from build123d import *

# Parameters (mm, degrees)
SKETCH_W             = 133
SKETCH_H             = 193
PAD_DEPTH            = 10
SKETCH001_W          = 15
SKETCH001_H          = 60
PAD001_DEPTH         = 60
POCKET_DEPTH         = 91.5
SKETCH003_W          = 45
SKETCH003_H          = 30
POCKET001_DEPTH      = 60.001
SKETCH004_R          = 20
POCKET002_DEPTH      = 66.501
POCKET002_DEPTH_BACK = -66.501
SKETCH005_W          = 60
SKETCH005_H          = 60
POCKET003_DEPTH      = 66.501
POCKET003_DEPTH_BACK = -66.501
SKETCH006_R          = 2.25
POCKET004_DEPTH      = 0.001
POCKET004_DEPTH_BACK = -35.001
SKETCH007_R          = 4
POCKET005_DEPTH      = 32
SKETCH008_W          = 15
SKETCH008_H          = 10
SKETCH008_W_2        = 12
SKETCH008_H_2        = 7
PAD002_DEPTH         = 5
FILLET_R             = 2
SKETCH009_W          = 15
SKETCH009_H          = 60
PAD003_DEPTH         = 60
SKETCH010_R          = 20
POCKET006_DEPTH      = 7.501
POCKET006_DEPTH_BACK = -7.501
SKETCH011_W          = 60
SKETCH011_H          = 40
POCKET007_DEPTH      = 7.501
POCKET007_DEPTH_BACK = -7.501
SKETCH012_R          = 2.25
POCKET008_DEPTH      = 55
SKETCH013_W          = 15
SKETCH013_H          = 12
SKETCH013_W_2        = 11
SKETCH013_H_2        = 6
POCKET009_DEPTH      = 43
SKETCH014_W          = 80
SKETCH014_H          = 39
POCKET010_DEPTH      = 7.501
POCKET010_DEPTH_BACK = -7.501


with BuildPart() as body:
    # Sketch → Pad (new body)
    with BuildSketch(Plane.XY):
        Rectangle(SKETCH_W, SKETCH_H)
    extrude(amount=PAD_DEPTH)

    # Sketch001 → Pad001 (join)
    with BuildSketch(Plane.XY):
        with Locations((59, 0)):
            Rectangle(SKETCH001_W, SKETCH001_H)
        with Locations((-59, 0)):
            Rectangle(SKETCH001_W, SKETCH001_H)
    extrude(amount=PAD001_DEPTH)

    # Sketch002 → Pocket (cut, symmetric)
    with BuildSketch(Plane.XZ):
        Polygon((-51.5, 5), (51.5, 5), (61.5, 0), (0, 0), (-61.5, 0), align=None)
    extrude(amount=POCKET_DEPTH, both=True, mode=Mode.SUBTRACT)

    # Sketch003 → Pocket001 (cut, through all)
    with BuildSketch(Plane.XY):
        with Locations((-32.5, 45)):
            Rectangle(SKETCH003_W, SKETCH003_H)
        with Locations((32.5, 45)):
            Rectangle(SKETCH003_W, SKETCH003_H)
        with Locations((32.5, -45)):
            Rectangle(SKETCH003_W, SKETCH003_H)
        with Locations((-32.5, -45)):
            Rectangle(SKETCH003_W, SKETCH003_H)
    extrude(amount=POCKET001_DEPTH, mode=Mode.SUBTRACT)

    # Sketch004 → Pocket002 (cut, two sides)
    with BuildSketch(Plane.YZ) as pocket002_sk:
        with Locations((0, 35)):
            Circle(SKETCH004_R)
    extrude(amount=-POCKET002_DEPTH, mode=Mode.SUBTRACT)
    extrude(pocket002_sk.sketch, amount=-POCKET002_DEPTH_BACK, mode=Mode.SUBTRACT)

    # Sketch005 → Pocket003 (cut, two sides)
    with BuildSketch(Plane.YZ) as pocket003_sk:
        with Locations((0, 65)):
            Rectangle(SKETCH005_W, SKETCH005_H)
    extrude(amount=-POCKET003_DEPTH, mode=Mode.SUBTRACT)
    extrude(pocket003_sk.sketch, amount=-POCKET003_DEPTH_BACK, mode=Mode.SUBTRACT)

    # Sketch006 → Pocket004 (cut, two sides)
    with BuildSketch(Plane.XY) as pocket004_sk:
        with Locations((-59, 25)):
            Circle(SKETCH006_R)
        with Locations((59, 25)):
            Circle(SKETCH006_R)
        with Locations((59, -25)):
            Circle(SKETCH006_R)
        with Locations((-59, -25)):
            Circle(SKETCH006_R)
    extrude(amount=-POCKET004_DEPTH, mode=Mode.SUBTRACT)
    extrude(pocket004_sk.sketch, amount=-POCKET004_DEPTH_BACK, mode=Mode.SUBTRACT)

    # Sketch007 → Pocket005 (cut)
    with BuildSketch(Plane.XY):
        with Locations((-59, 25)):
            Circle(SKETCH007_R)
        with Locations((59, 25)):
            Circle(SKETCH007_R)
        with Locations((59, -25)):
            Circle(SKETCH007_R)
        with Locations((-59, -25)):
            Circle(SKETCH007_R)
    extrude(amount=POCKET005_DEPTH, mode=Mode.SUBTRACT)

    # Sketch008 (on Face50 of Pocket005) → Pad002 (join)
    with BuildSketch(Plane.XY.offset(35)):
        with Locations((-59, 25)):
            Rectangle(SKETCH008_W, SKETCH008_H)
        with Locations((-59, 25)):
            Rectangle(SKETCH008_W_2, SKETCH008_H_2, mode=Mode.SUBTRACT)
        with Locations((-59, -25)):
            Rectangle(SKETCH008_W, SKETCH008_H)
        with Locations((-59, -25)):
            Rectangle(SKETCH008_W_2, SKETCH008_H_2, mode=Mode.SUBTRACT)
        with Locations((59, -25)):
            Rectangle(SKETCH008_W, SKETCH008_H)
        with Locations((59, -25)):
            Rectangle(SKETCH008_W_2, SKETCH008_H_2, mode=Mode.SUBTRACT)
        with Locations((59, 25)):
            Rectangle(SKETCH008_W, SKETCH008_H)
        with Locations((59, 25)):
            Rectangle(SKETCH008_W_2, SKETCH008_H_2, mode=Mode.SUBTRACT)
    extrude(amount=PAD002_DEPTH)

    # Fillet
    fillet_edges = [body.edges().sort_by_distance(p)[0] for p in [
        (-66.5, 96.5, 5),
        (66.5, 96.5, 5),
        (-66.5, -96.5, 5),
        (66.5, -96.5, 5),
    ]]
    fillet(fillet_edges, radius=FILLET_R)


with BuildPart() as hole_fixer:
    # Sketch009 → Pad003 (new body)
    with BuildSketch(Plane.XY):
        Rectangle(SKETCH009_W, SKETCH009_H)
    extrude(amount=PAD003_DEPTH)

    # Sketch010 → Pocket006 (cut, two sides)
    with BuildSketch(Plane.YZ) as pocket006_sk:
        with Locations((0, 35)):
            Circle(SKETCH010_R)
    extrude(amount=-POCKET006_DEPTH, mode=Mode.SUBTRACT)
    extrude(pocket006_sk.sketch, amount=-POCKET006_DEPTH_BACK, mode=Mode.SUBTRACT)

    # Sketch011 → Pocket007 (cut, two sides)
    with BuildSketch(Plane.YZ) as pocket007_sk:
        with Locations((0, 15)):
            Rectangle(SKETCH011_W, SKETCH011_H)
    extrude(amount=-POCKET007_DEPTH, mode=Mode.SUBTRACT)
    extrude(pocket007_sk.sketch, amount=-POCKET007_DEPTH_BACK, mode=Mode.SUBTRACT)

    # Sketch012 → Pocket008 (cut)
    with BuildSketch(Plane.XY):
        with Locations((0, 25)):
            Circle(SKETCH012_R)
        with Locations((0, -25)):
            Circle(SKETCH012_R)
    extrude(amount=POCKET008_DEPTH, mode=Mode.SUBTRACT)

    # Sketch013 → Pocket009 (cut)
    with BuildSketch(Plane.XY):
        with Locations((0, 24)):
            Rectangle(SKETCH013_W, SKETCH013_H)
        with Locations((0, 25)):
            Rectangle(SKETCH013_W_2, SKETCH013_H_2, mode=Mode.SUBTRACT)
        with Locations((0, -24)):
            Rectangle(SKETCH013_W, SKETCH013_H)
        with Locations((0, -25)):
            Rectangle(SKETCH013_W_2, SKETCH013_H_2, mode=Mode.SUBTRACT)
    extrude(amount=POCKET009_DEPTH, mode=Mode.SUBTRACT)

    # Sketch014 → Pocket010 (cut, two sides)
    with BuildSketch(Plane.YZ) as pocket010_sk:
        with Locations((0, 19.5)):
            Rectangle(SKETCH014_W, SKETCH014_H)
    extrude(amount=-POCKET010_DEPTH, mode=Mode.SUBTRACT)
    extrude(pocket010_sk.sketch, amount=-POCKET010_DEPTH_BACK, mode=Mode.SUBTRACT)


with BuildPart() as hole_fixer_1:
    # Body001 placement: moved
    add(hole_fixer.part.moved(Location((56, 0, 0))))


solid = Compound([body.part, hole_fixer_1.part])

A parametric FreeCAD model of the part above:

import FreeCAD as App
import Part
import Sketcher
from FreeCAD import Vector


def edges_at(feature, points):
    """Names of the edges that pass closest to the given points."""
    edges = feature.Shape.Edges
    near = lambda p: min(range(len(edges)), key=lambda i: edges[i].distToShape(Part.Vertex(*p))[0])
    return sorted({f"Edge{near(p) + 1}" for p in points})

doc = App.newDocument("Part")
body = doc.addObject("PartDesign::Body", "Body")

sketch1 = doc.addObject("Sketcher::SketchObject", "Sketch")
body.addObject(sketch1)
sketch1.AttachmentSupport = (doc.XY_Plane, [""])
sketch1.MapMode = "FlatFace"
sketch1.addGeometry([
    Part.LineSegment(Vector(-66, 96, 0), Vector(-66, -96, 0)),
    Part.LineSegment(Vector(-66, -96, 0), Vector(66, -96, 0)),
    Part.LineSegment(Vector(66, -96, 0), Vector(66, 96, 0)),
    Part.LineSegment(Vector(66, 96, 0), Vector(-66, 96, 0)),
], False)
sketch1.addConstraint([
    Sketcher.Constraint("Coincident", 0, 2, 1, 1),
    Sketcher.Constraint("Coincident", 1, 2, 2, 1),
    Sketcher.Constraint("Coincident", 2, 2, 3, 1),
    Sketcher.Constraint("Coincident", 3, 2, 0, 1),
    Sketcher.Constraint("Vertical", 0),
    Sketcher.Constraint("Horizontal", 1),
    Sketcher.Constraint("Vertical", 2),
    Sketcher.Constraint("Horizontal", 3),
    Sketcher.Constraint("Symmetric", 0, 2, 2, 2, -1, 1),
    Sketcher.Constraint("DistanceX", 1, 1, 1, 2, 133.0),
    Sketcher.Constraint("DistanceY", 0, 2, 0, 1, 193.0),
])
pad1 = doc.addObject("PartDesign::Pad", "Pad")
body.addObject(pad1)
pad1.Profile = sketch1
pad1.Length = 10

sketch2 = doc.addObject("Sketcher::SketchObject", "Sketch001")
body.addObject(sketch2)
sketch2.AttachmentSupport = (doc.XY_Plane, [""])
sketch2.MapMode = "FlatFace"
sketch2.addGeometry([
    Part.LineSegment(Vector(52, 30, 0), Vector(52, -30, 0)),
    Part.LineSegment(Vector(52, -30, 0), Vector(66, -30, 0)),
    Part.LineSegment(Vector(66, -30, 0), Vector(66, 30, 0)),
    Part.LineSegment(Vector(66, 30, 0), Vector(52, 30, 0)),
    Part.LineSegment(Vector(-66, 30, 0), Vector(-66, -30, 0)),
    Part.LineSegment(Vector(-66, -30, 0), Vector(-52, -30, 0)),
    Part.LineSegment(Vector(-52, -30, 0), Vector(-52, 30, 0)),
    Part.LineSegment(Vector(-52, 30, 0), Vector(-66, 30, 0)),
], False)
sketch2.addConstraint([
    Sketcher.Constraint("Coincident", 0, 2, 1, 1),
    Sketcher.Constraint("Coincident", 1, 2, 2, 1),
    Sketcher.Constraint("Coincident", 2, 2, 3, 1),
    Sketcher.Constraint("Coincident", 3, 2, 0, 1),
    Sketcher.Constraint("Coincident", 4, 2, 5, 1),
    Sketcher.Constraint("Coincident", 5, 2, 6, 1),
    Sketcher.Constraint("Coincident", 6, 2, 7, 1),
    Sketcher.Constraint("Coincident", 7, 2, 4, 1),
    Sketcher.Constraint("Vertical", 0),
    Sketcher.Constraint("Horizontal", 1),
    Sketcher.Constraint("Vertical", 2),
    Sketcher.Constraint("Horizontal", 3),
    Sketcher.Constraint("Vertical", 4),
    Sketcher.Constraint("Horizontal", 5),
    Sketcher.Constraint("Vertical", 6),
    Sketcher.Constraint("Horizontal", 7),
    Sketcher.Constraint("Symmetric", 2, 2, 4, 2, -1, 1),
    Sketcher.Constraint("Symmetric", 0, 2, 6, 2, -1, 1),
    Sketcher.Constraint("Horizontal", 1, 2, 4, 2),
    Sketcher.Constraint("DistanceX", 1, 1, 1, 2, 15.0),
    Sketcher.Constraint("DistanceY", 0, 2, 0, 1, 60.0),
    Sketcher.Constraint("DistanceX", 4, 2, 0, 2, 118.0),
])
pad2 = doc.addObject("PartDesign::Pad", "Pad001")
body.addObject(pad2)
pad2.Profile = sketch2
pad2.Length = 60

sketch3 = doc.addObject("Sketcher::SketchObject", "Sketch002")
body.addObject(sketch3)
sketch3.AttachmentSupport = (doc.XZ_Plane, [""])
sketch3.MapMode = "FlatFace"
sketch3.addGeometry([
    Part.LineSegment(Vector(52, 5, 0), Vector(-52, 5, 0)),
    Part.LineSegment(Vector(-52, 5, 0), Vector(-62, 0, 0)),
    Part.LineSegment(Vector(-62, 0, 0), Vector(62, 0, 0)),
    Part.LineSegment(Vector(62, 0, 0), Vector(52, 5, 0)),
], False)
sketch3.addConstraint([
    Sketcher.Constraint("Coincident", 0, 2, 1, 1),
    Sketcher.Constraint("Coincident", 1, 2, 2, 1),
    Sketcher.Constraint("Coincident", 2, 2, 3, 1),
    Sketcher.Constraint("Coincident", 3, 2, 0, 1),
    Sketcher.Constraint("Horizontal", 0),
    Sketcher.Constraint("Horizontal", 2),
    Sketcher.Constraint("Symmetric", 1, 2, 2, 2, -1, 1),
    Sketcher.Constraint("Equal", 1, 3),
    Sketcher.Constraint("DistanceX", 0, 2, 0, 1, 103.0),
    Sketcher.Constraint("DistanceX", 2, 1, 2, 2, 123.0),
    Sketcher.Constraint("DistanceY", -1, 1, 0, 2, 5.0),
])
pocket1 = doc.addObject("PartDesign::Pocket", "Pocket")
body.addObject(pocket1)
pocket1.Profile = sketch3
pocket1.Length = 183
pocket1.Midplane = True

sketch4 = doc.addObject("Sketcher::SketchObject", "Sketch003")
body.addObject(sketch4)
sketch4.AttachmentSupport = (doc.XY_Plane, [""])
sketch4.MapMode = "FlatFace"
sketch4.addGeometry([
    Part.LineSegment(Vector(-55, 60, 0), Vector(-55, 30, 0)),
    Part.LineSegment(Vector(-55, 30, 0), Vector(-10, 30, 0)),
    Part.LineSegment(Vector(-10, 30, 0), Vector(-10, 60, 0)),
    Part.LineSegment(Vector(-10, 60, 0), Vector(-55, 60, 0)),
    Part.LineSegment(Vector(10, 60, 0), Vector(10, 30, 0)),
    Part.LineSegment(Vector(10, 30, 0), Vector(55, 30, 0)),
    Part.LineSegment(Vector(55, 30, 0), Vector(55, 60, 0)),
    Part.LineSegment(Vector(55, 60, 0), Vector(10, 60, 0)),
    Part.LineSegment(Vector(10, -30, 0), Vector(10, -60, 0)),
    Part.LineSegment(Vector(10, -60, 0), Vector(55, -60, 0)),
    Part.LineSegment(Vector(55, -60, 0), Vector(55, -30, 0)),
    Part.LineSegment(Vector(55, -30, 0), Vector(10, -30, 0)),
    Part.LineSegment(Vector(-55, -30, 0), Vector(-55, -60, 0)),
    Part.LineSegment(Vector(-55, -60, 0), Vector(-10, -60, 0)),
    Part.LineSegment(Vector(-10, -60, 0), Vector(-10, -30, 0)),
    Part.LineSegment(Vector(-10, -30, 0), Vector(-55, -30, 0)),
], False)
sketch4.addConstraint([
    Sketcher.Constraint("Coincident", 0, 2, 1, 1),
    Sketcher.Constraint("Coincident", 1, 2, 2, 1),
    Sketcher.Constraint("Coincident", 2, 2, 3, 1),
    Sketcher.Constraint("Coincident", 3, 2, 0, 1),
    Sketcher.Constraint("Coincident", 4, 2, 5, 1),
    Sketcher.Constraint("Coincident", 5, 2, 6, 1),
    Sketcher.Constraint("Coincident", 6, 2, 7, 1),
    Sketcher.Constraint("Coincident", 7, 2, 4, 1),
    Sketcher.Constraint("Coincident", 8, 2, 9, 1),
    Sketcher.Constraint("Coincident", 9, 2, 10, 1),
    Sketcher.Constraint("Coincident", 10, 2, 11, 1),
    Sketcher.Constraint("Coincident", 11, 2, 8, 1),
    Sketcher.Constraint("Coincident", 12, 2, 13, 1),
    Sketcher.Constraint("Coincident", 13, 2, 14, 1),
    Sketcher.Constraint("Coincident", 14, 2, 15, 1),
    Sketcher.Constraint("Coincident", 15, 2, 12, 1),
    Sketcher.Constraint("Vertical", 0),
    Sketcher.Constraint("Horizontal", 1),
    Sketcher.Constraint("Vertical", 2),
    Sketcher.Constraint("Horizontal", 3),
    Sketcher.Constraint("Vertical", 4),
    Sketcher.Constraint("Horizontal", 5),
    Sketcher.Constraint("Vertical", 6),
    Sketcher.Constraint("Horizontal", 7),
    Sketcher.Constraint("Vertical", 8),
    Sketcher.Constraint("Horizontal", 9),
    Sketcher.Constraint("Vertical", 10),
    Sketcher.Constraint("Horizontal", 11),
    Sketcher.Constraint("Vertical", 12),
    Sketcher.Constraint("Horizontal", 13),
    Sketcher.Constraint("Vertical", 14),
    Sketcher.Constraint("Horizontal", 15),
    Sketcher.Constraint("Symmetric", 2, 2, 8, 2, -1, 1),
    Sketcher.Constraint("Symmetric", 0, 2, 10, 2, -1, 1),
    Sketcher.Constraint("Symmetric", 6, 2, 12, 2, -1, 1),
    Sketcher.Constraint("Symmetric", 4, 2, 14, 2, -1, 1),
    Sketcher.Constraint("Symmetric", 1, 2, 4, 2, -2),
    Sketcher.Constraint("Symmetric", 3, 2, 6, 2, -2),
    Sketcher.Constraint("DistanceX", 1, 1, 1, 2, 45.0),
    Sketcher.Constraint("DistanceY", 0, 2, 0, 1, 30.0),
    Sketcher.Constraint("DistanceX", 0, 2, -1, 1, 55.0),
    Sketcher.Constraint("DistanceY", -1, 1, 0, 2, 30.0),
])
pocket2 = doc.addObject("PartDesign::Pocket", "Pocket001")
body.addObject(pocket2)
pocket2.Profile = sketch4
pocket2.Type = "ThroughAll"
pocket2.Reversed = True

sketch5 = doc.addObject("Sketcher::SketchObject", "Sketch004")
body.addObject(sketch5)
sketch5.AttachmentSupport = (doc.YZ_Plane, [""])
sketch5.MapMode = "FlatFace"
sketch5.addGeometry(Part.Circle(Vector(0, 35, 0), Vector(0, 0, 1), 20), False)
sketch5.addConstraint([
    Sketcher.Constraint("PointOnObject", 0, 3, -2),
    Sketcher.Constraint("Diameter", 0, 40.0),
    Sketcher.Constraint("DistanceY", -1, 1, 0, 3, 35.0),
])
pocket3 = doc.addObject("PartDesign::Pocket", "Pocket002")
body.addObject(pocket3)
pocket3.Profile = sketch5
pocket3.Type = "ThroughAll"
pocket3.Midplane = True

sketch6 = doc.addObject("Sketcher::SketchObject", "Sketch005")
body.addObject(sketch6)
sketch6.AttachmentSupport = (doc.YZ_Plane, [""])
sketch6.MapMode = "FlatFace"
sketch6.addGeometry([
    Part.LineSegment(Vector(-30, 95, 0), Vector(-30, 35, 0)),
    Part.LineSegment(Vector(-30, 35, 0), Vector(30, 35, 0)),
    Part.LineSegment(Vector(30, 35, 0), Vector(30, 95, 0)),
    Part.LineSegment(Vector(30, 95, 0), Vector(-30, 95, 0)),
], False)
sketch6.addConstraint([
    Sketcher.Constraint("Coincident", 0, 2, 1, 1),
    Sketcher.Constraint("Coincident", 1, 2, 2, 1),
    Sketcher.Constraint("Coincident", 2, 2, 3, 1),
    Sketcher.Constraint("Coincident", 3, 2, 0, 1),
    Sketcher.Constraint("Vertical", 0),
    Sketcher.Constraint("Horizontal", 1),
    Sketcher.Constraint("Vertical", 2),
    Sketcher.Constraint("Horizontal", 3),
    Sketcher.Constraint("Equal", 3, 0),
    Sketcher.Constraint("DistanceX", 1, 1, 1, 2, 60.0),
    Sketcher.Constraint("DistanceX", 0, 2, -1, 1, 30.0),
    Sketcher.Constraint("DistanceY", -1, 1, 0, 2, 35.0),
])
pocket4 = doc.addObject("PartDesign::Pocket", "Pocket003")
body.addObject(pocket4)
pocket4.Profile = sketch6
pocket4.Type = "ThroughAll"
pocket4.Midplane = True

sketch7 = doc.addObject("Sketcher::SketchObject", "Sketch006")
body.addObject(sketch7)
sketch7.AttachmentSupport = (doc.XY_Plane, [""])
sketch7.MapMode = "FlatFace"
sketch7.addGeometry([
    Part.Circle(Vector(-59, 25, 0), Vector(0, 0, 1), 2.2),
    Part.Circle(Vector(59, 25, 0), Vector(0, 0, 1), 2.2),
    Part.Circle(Vector(59, -25, 0), Vector(0, 0, 1), 2.2),
    Part.Circle(Vector(-59, -25, 0), Vector(0, 0, 1), 2.2),
], False)
sketch7.addConstraint([
    Sketcher.Constraint("Equal", 0, 1),
    Sketcher.Constraint("Equal", 1, 2),
    Sketcher.Constraint("Equal", 2, 3),
    Sketcher.Constraint("Symmetric", 0, 3, 2, 3, -1, 1),
    Sketcher.Constraint("Symmetric", 1, 3, 3, 3, -1, 1),
    Sketcher.Constraint("Symmetric", 0, 3, 1, 3, -2),
    Sketcher.Constraint("Diameter", 0, 4.5),
    Sketcher.Constraint("DistanceX", 0, 3, -1, 1, 59.0),
    Sketcher.Constraint("DistanceY", -1, 1, 0, 3, 25.0),
])
pocket5 = doc.addObject("PartDesign::Pocket", "Pocket004")
body.addObject(pocket5)
pocket5.Profile = sketch7
pocket5.Type = "ThroughAll"
pocket5.Midplane = True

sketch8 = doc.addObject("Sketcher::SketchObject", "Sketch007")
body.addObject(sketch8)
sketch8.AttachmentSupport = (doc.XY_Plane, [""])
sketch8.MapMode = "FlatFace"
sketch8.addGeometry([
    Part.Circle(Vector(-59, 25, 0), Vector(0, 0, 1), 4),
    Part.Circle(Vector(59, 25, 0), Vector(0, 0, 1), 4),
    Part.Circle(Vector(59, -25, 0), Vector(0, 0, 1), 4),
    Part.Circle(Vector(-59, -25, 0), Vector(0, 0, 1), 4),
], False)
sketch8.addConstraint([
    Sketcher.Constraint("Equal", 0, 1),
    Sketcher.Constraint("Equal", 1, 2),
    Sketcher.Constraint("Equal", 2, 3),
    Sketcher.Constraint("Symmetric", 0, 3, 2, 3, -1, 1),
    Sketcher.Constraint("Symmetric", 1, 3, 3, 3, -1, 1),
    Sketcher.Constraint("Symmetric", 0, 3, 1, 3, -2),
    Sketcher.Constraint("Diameter", 0, 8.0),
    Sketcher.Constraint("DistanceX", 0, 3, -1, 1, 59.0),
    Sketcher.Constraint("DistanceY", -1, 1, 0, 3, 25.0),
])
pocket6 = doc.addObject("PartDesign::Pocket", "Pocket005")
body.addObject(pocket6)
pocket6.Profile = sketch8
pocket6.Length = 32
pocket6.Reversed = True

sketch9 = doc.addObject("Sketcher::SketchObject", "Sketch008")
body.addObject(sketch9)
sketch9.AttachmentSupport = (doc.XY_Plane, [""])
sketch9.MapMode = "FlatFace"
sketch9.AttachmentOffset = App.Placement(Vector(0, 0, 35), App.Rotation())
sketch9.addGeometry([
    Part.LineSegment(Vector(-66, 30, 0), Vector(-66, 20, 0)),
    Part.LineSegment(Vector(-66, 20, 0), Vector(-52, 20, 0)),
    Part.LineSegment(Vector(-52, 20, 0), Vector(-52, 30, 0)),
    Part.LineSegment(Vector(-52, 30, 0), Vector(-66, 30, 0)),
    Part.LineSegment(Vector(-53, 22, 0), Vector(-65, 22, 0)),
    Part.LineSegment(Vector(-65, 22, 0), Vector(-65, 28, 0)),
    Part.LineSegment(Vector(-65, 28, 0), Vector(-53, 28, 0)),
    Part.LineSegment(Vector(-53, 28, 0), Vector(-53, 22, 0)),
    Part.LineSegment(Vector(-66, -20, 0), Vector(-66, -30, 0)),
    Part.LineSegment(Vector(-66, -30, 0), Vector(-52, -30, 0)),
    Part.LineSegment(Vector(-52, -30, 0), Vector(-52, -20, 0)),
    Part.LineSegment(Vector(-52, -20, 0), Vector(-66, -20, 0)),
    Part.LineSegment(Vector(-53, -28, 0), Vector(-65, -28, 0)),
    Part.LineSegment(Vector(-65, -28, 0), Vector(-65, -22, 0)),
    Part.LineSegment(Vector(-65, -22, 0), Vector(-53, -22, 0)),
    Part.LineSegment(Vector(-53, -22, 0), Vector(-53, -28, 0)),
    Part.LineSegment(Vector(52, -20, 0), Vector(52, -30, 0)),
    Part.LineSegment(Vector(52, -30, 0), Vector(66, -30, 0)),
    Part.LineSegment(Vector(66, -30, 0), Vector(66, -20, 0)),
    Part.LineSegment(Vector(66, -20, 0), Vector(52, -20, 0)),
    Part.LineSegment(Vector(65, -28, 0), Vector(53, -28, 0)),
    Part.LineSegment(Vector(53, -28, 0), Vector(53, -22, 0)),
    Part.LineSegment(Vector(53, -22, 0), Vector(65, -22, 0)),
    Part.LineSegment(Vector(65, -22, 0), Vector(65, -28, 0)),
    Part.LineSegment(Vector(52, 30, 0), Vector(52, 20, 0)),
    Part.LineSegment(Vector(52, 20, 0), Vector(66, 20, 0)),
    Part.LineSegment(Vector(66, 20, 0), Vector(66, 30, 0)),
    Part.LineSegment(Vector(66, 30, 0), Vector(52, 30, 0)),
    Part.LineSegment(Vector(65, 22, 0), Vector(53, 22, 0)),
    Part.LineSegment(Vector(53, 22, 0), Vector(53, 28, 0)),
    Part.LineSegment(Vector(53, 28, 0), Vector(65, 28, 0)),
    Part.LineSegment(Vector(65, 28, 0), Vector(65, 22, 0)),
], False)
sketch9.addConstraint([
    Sketcher.Constraint("Coincident", 0, 2, 1, 1),
    Sketcher.Constraint("Coincident", 1, 2, 2, 1),
    Sketcher.Constraint("Coincident", 2, 2, 3, 1),
    Sketcher.Constraint("Coincident", 3, 2, 0, 1),
    Sketcher.Constraint("Coincident", 4, 2, 5, 1),
    Sketcher.Constraint("Coincident", 5, 2, 6, 1),
    Sketcher.Constraint("Coincident", 6, 2, 7, 1),
    Sketcher.Constraint("Coincident", 7, 2, 4, 1),
    Sketcher.Constraint("Coincident", 8, 2, 9, 1),
    Sketcher.Constraint("Coincident", 9, 2, 10, 1),
    Sketcher.Constraint("Coincident", 10, 2, 11, 1),
    Sketcher.Constraint("Coincident", 11, 2, 8, 1),
    Sketcher.Constraint("Coincident", 12, 2, 13, 1),
    Sketcher.Constraint("Coincident", 13, 2, 14, 1),
    Sketcher.Constraint("Coincident", 14, 2, 15, 1),
    Sketcher.Constraint("Coincident", 15, 2, 12, 1),
    Sketcher.Constraint("Coincident", 16, 2, 17, 1),
    Sketcher.Constraint("Coincident", 17, 2, 18, 1),
    Sketcher.Constraint("Coincident", 18, 2, 19, 1),
    Sketcher.Constraint("Coincident", 19, 2, 16, 1),
    Sketcher.Constraint("Coincident", 20, 2, 21, 1),
    Sketcher.Constraint("Coincident", 21, 2, 22, 1),
    Sketcher.Constraint("Coincident", 22, 2, 23, 1),
    Sketcher.Constraint("Coincident", 23, 2, 20, 1),
    Sketcher.Constraint("Coincident", 24, 2, 25, 1),
    Sketcher.Constraint("Coincident", 25, 2, 26, 1),
    Sketcher.Constraint("Coincident", 26, 2, 27, 1),
    Sketcher.Constraint("Coincident", 27, 2, 24, 1),
    Sketcher.Constraint("Coincident", 28, 2, 29, 1),
    Sketcher.Constraint("Coincident", 29, 2, 30, 1),
    Sketcher.Constraint("Coincident", 30, 2, 31, 1),
    Sketcher.Constraint("Coincident", 31, 2, 28, 1),
    Sketcher.Constraint("Vertical", 0),
    Sketcher.Constraint("Horizontal", 1),
    Sketcher.Constraint("Vertical", 2),
    Sketcher.Constraint("Horizontal", 3),
    Sketcher.Constraint("Horizontal", 4),
    Sketcher.Constraint("Vertical", 5),
    Sketcher.Constraint("Horizontal", 6),
    Sketcher.Constraint("Vertical", 7),
    Sketcher.Constraint("Vertical", 8),
    Sketcher.Constraint("Horizontal", 9),
    Sketcher.Constraint("Vertical", 10),
    Sketcher.Constraint("Horizontal", 11),
    Sketcher.Constraint("Horizontal", 12),
    Sketcher.Constraint("Vertical", 13),
    Sketcher.Constraint("Horizontal", 14),
    Sketcher.Constraint("Vertical", 15),
    Sketcher.Constraint("Vertical", 16),
    Sketcher.Constraint("Horizontal", 17),
    Sketcher.Constraint("Vertical", 18),
    Sketcher.Constraint("Horizontal", 19),
    Sketcher.Constraint("Horizontal", 20),
    Sketcher.Constraint("Vertical", 21),
    Sketcher.Constraint("Horizontal", 22),
    Sketcher.Constraint("Vertical", 23),
    Sketcher.Constraint("Vertical", 24),
    Sketcher.Constraint("Horizontal", 25),
    Sketcher.Constraint("Vertical", 26),
    Sketcher.Constraint("Horizontal", 27),
    Sketcher.Constraint("Horizontal", 28),
    Sketcher.Constraint("Vertical", 29),
    Sketcher.Constraint("Horizontal", 30),
    Sketcher.Constraint("Vertical", 31),
    Sketcher.Constraint("Symmetric", 2, 2, 16, 2, -1, 1),
    Sketcher.Constraint("Symmetric", 0, 2, 18, 2, -1, 1),
    Sketcher.Constraint("Symmetric", 6, 2, 20, 2, -1, 1),
    Sketcher.Constraint("Symmetric", 4, 2, 22, 2, -1, 1),
    Sketcher.Constraint("Symmetric", 10, 2, 24, 2, -1, 1),
    Sketcher.Constraint("Symmetric", 8, 2, 26, 2, -1, 1),
    Sketcher.Constraint("Symmetric", 14, 2, 28, 2, -1, 1),
    Sketcher.Constraint("Symmetric", 12, 2, 30, 2, -1, 1),
    Sketcher.Constraint("Symmetric", 9, 2, 16, 2, -2),
    Sketcher.Constraint("Symmetric", 11, 2, 18, 2, -2),
    Sketcher.Constraint("Symmetric", 15, 2, 20, 2, -2),
    Sketcher.Constraint("Symmetric", 13, 2, 22, 2, -2),
    Sketcher.Constraint("DistanceX", 1, 1, 1, 2, 15.0),
    Sketcher.Constraint("DistanceX", 4, 2, 4, 1, 12.0),
    Sketcher.Constraint("DistanceY", 0, 2, 0, 1, 10.0),
    Sketcher.Constraint("DistanceY", 5, 1, 5, 2, 7.0),
    Sketcher.Constraint("DistanceY", -1, 1, 0, 2, 20.0),
    Sketcher.Constraint("DistanceX", 4, 2, -1, 1, 65.0),
    Sketcher.Constraint("DistanceX", 9, 2, 16, 2, 103.0),
    Sketcher.Constraint("DistanceY", -1, 1, 4, 2, 21.5),
])
pad3 = doc.addObject("PartDesign::Pad", "Pad002")
body.addObject(pad3)
pad3.Profile = sketch9
pad3.Length = 5
doc.recompute()

fillet = doc.addObject("PartDesign::Fillet", "Fillet")
body.addObject(fillet)
fillet.Base = (pad3, edges_at(pad3, [
    (-66.5, 96.5, 5),
    (66.5, 96.5, 5),
    (-66.5, -96.5, 5),
    (66.5, -96.5, 5),
]))
fillet.Radius = 2
body2 = doc.addObject("PartDesign::Body", "Body001")

sketch10 = doc.addObject("Sketcher::SketchObject", "Sketch009")
body2.addObject(sketch10)
sketch10.AttachmentSupport = (doc.getObject("XY_Plane001"), [""])
sketch10.MapMode = "FlatFace"
sketch10.addGeometry([
    Part.LineSegment(Vector(-8, 30, 0), Vector(-8, -30, 0)),
    Part.LineSegment(Vector(-8, -30, 0), Vector(8, -30, 0)),
    Part.LineSegment(Vector(8, -30, 0), Vector(8, 30, 0)),
    Part.LineSegment(Vector(8, 30, 0), Vector(-8, 30, 0)),
], False)
sketch10.addConstraint([
    Sketcher.Constraint("Coincident", 0, 2, 1, 1),
    Sketcher.Constraint("Coincident", 1, 2, 2, 1),
    Sketcher.Constraint("Coincident", 2, 2, 3, 1),
    Sketcher.Constraint("Coincident", 3, 2, 0, 1),
    Sketcher.Constraint("Vertical", 0),
    Sketcher.Constraint("Horizontal", 1),
    Sketcher.Constraint("Vertical", 2),
    Sketcher.Constraint("Horizontal", 3),
    Sketcher.Constraint("Symmetric", 0, 2, 2, 2, -1, 1),
    Sketcher.Constraint("DistanceX", 1, 1, 1, 2, 15.0),
    Sketcher.Constraint("DistanceY", 0, 2, 0, 1, 60.0),
])
pad4 = doc.addObject("PartDesign::Pad", "Pad003")
body2.addObject(pad4)
pad4.Profile = sketch10
pad4.Length = 60

sketch11 = doc.addObject("Sketcher::SketchObject", "Sketch010")
body2.addObject(sketch11)
sketch11.AttachmentSupport = (doc.getObject("YZ_Plane001"), [""])
sketch11.MapMode = "FlatFace"
sketch11.addGeometry(Part.Circle(Vector(0, 35, 0), Vector(0, 0, 1), 20), False)
sketch11.addConstraint([
    Sketcher.Constraint("PointOnObject", 0, 3, -2),
    Sketcher.Constraint("Diameter", 0, 40.0),
    Sketcher.Constraint("DistanceY", -1, 1, 0, 3, 35.0),
])
pocket7 = doc.addObject("PartDesign::Pocket", "Pocket006")
body2.addObject(pocket7)
pocket7.Profile = sketch11
pocket7.Type = "ThroughAll"
pocket7.Midplane = True

sketch12 = doc.addObject("Sketcher::SketchObject", "Sketch011")
body2.addObject(sketch12)
sketch12.AttachmentSupport = (doc.getObject("YZ_Plane001"), [""])
sketch12.MapMode = "FlatFace"
sketch12.addGeometry([
    Part.LineSegment(Vector(-30, 35, 0), Vector(-30, -5, 0)),
    Part.LineSegment(Vector(-30, -5, 0), Vector(30, -5, 0)),
    Part.LineSegment(Vector(30, -5, 0), Vector(30, 35, 0)),
    Part.LineSegment(Vector(30, 35, 0), Vector(-30, 35, 0)),
], False)
sketch12.addConstraint([
    Sketcher.Constraint("Coincident", 0, 2, 1, 1),
    Sketcher.Constraint("Coincident", 1, 2, 2, 1),
    Sketcher.Constraint("Coincident", 2, 2, 3, 1),
    Sketcher.Constraint("Coincident", 3, 2, 0, 1),
    Sketcher.Constraint("Vertical", 0),
    Sketcher.Constraint("Horizontal", 1),
    Sketcher.Constraint("Vertical", 2),
    Sketcher.Constraint("Horizontal", 3),
    Sketcher.Constraint("DistanceX", 1, 1, 1, 2, 60.0),
    Sketcher.Constraint("DistanceY", 0, 2, 0, 1, 40.0),
    Sketcher.Constraint("DistanceX", 0, 2, -1, 1, 30.0),
    Sketcher.Constraint("DistanceY", 0, 2, -1, 1, 5.0),
])
pocket8 = doc.addObject("PartDesign::Pocket", "Pocket007")
body2.addObject(pocket8)
pocket8.Profile = sketch12
pocket8.Type = "ThroughAll"
pocket8.Midplane = True

sketch13 = doc.addObject("Sketcher::SketchObject", "Sketch012")
body2.addObject(sketch13)
sketch13.AttachmentSupport = (doc.getObject("XY_Plane001"), [""])
sketch13.MapMode = "FlatFace"
sketch13.addGeometry([
    Part.Circle(Vector(0, 25, 0), Vector(0, 0, 1), 2.2),
    Part.Circle(Vector(0, -25, 0), Vector(0, 0, 1), 2.2),
], False)
sketch13.addConstraint([
    Sketcher.Constraint("Equal", 0, 1),
    Sketcher.Constraint("Symmetric", 0, 3, 1, 3, -1, 1),
    Sketcher.Constraint("PointOnObject", 0, 3, -2),
    Sketcher.Constraint("Diameter", 0, 4.5),
    Sketcher.Constraint("DistanceY", -1, 1, 0, 3, 25.0),
])
pocket9 = doc.addObject("PartDesign::Pocket", "Pocket008")
body2.addObject(pocket9)
pocket9.Profile = sketch13
pocket9.Length = 55
pocket9.Reversed = True

sketch14 = doc.addObject("Sketcher::SketchObject", "Sketch013")
body2.addObject(sketch14)
sketch14.AttachmentSupport = (doc.getObject("XY_Plane001"), [""])
sketch14.MapMode = "FlatFace"
sketch14.addGeometry([
    Part.LineSegment(Vector(-8, 30, 0), Vector(-8, 18, 0)),
    Part.LineSegment(Vector(-8, 18, 0), Vector(8, 18, 0)),
    Part.LineSegment(Vector(8, 18, 0), Vector(8, 30, 0)),
    Part.LineSegment(Vector(8, 30, 0), Vector(-8, 30, 0)),
    Part.LineSegment(Vector(6, 22, 0), Vector(-6, 22, 0)),
    Part.LineSegment(Vector(-6, 22, 0), Vector(-6, 28, 0)),
    Part.LineSegment(Vector(-6, 28, 0), Vector(6, 28, 0)),
    Part.LineSegment(Vector(6, 28, 0), Vector(6, 22, 0)),
    Part.LineSegment(Vector(-8, -18, 0), Vector(-8, -30, 0)),
    Part.LineSegment(Vector(-8, -30, 0), Vector(8, -30, 0)),
    Part.LineSegment(Vector(8, -30, 0), Vector(8, -18, 0)),
    Part.LineSegment(Vector(8, -18, 0), Vector(-8, -18, 0)),
    Part.LineSegment(Vector(6, -28, 0), Vector(-6, -28, 0)),
    Part.LineSegment(Vector(-6, -28, 0), Vector(-6, -22, 0)),
    Part.LineSegment(Vector(-6, -22, 0), Vector(6, -22, 0)),
    Part.LineSegment(Vector(6, -22, 0), Vector(6, -28, 0)),
], False)
sketch14.addConstraint([
    Sketcher.Constraint("Coincident", 0, 2, 1, 1),
    Sketcher.Constraint("Coincident", 1, 2, 2, 1),
    Sketcher.Constraint("Coincident", 2, 2, 3, 1),
    Sketcher.Constraint("Coincident", 3, 2, 0, 1),
    Sketcher.Constraint("Coincident", 4, 2, 5, 1),
    Sketcher.Constraint("Coincident", 5, 2, 6, 1),
    Sketcher.Constraint("Coincident", 6, 2, 7, 1),
    Sketcher.Constraint("Coincident", 7, 2, 4, 1),
    Sketcher.Constraint("Coincident", 8, 2, 9, 1),
    Sketcher.Constraint("Coincident", 9, 2, 10, 1),
    Sketcher.Constraint("Coincident", 10, 2, 11, 1),
    Sketcher.Constraint("Coincident", 11, 2, 8, 1),
    Sketcher.Constraint("Coincident", 12, 2, 13, 1),
    Sketcher.Constraint("Coincident", 13, 2, 14, 1),
    Sketcher.Constraint("Coincident", 14, 2, 15, 1),
    Sketcher.Constraint("Coincident", 15, 2, 12, 1),
    Sketcher.Constraint("Vertical", 0),
    Sketcher.Constraint("Horizontal", 1),
    Sketcher.Constraint("Vertical", 2),
    Sketcher.Constraint("Horizontal", 3),
    Sketcher.Constraint("Horizontal", 4),
    Sketcher.Constraint("Vertical", 5),
    Sketcher.Constraint("Horizontal", 6),
    Sketcher.Constraint("Vertical", 7),
    Sketcher.Constraint("Vertical", 8),
    Sketcher.Constraint("Horizontal", 9),
    Sketcher.Constraint("Vertical", 10),
    Sketcher.Constraint("Horizontal", 11),
    Sketcher.Constraint("Horizontal", 12),
    Sketcher.Constraint("Vertical", 13),
    Sketcher.Constraint("Horizontal", 14),
    Sketcher.Constraint("Vertical", 15),
    Sketcher.Constraint("Symmetric", 2, 2, 8, 2, -1, 1),
    Sketcher.Constraint("Symmetric", 0, 2, 10, 2, -1, 1),
    Sketcher.Constraint("Symmetric", 6, 2, 12, 2, -1, 1),
    Sketcher.Constraint("Symmetric", 4, 2, 14, 2, -1, 1),
    Sketcher.Constraint("Vertical", 3, 2, 8, 2),
    Sketcher.Constraint("Vertical", 5, 2, 12, 2),
    Sketcher.Constraint("DistanceX", 1, 1, 1, 2, 15.0),
    Sketcher.Constraint("DistanceX", 4, 2, 4, 1, 11.0),
    Sketcher.Constraint("DistanceY", 0, 2, 0, 1, 12.0),
    Sketcher.Constraint("DistanceY", 5, 1, 5, 2, 6.0),
    Sketcher.Constraint("DistanceY", -1, 1, 0, 2, 18.0),
    Sketcher.Constraint("DistanceY", -1, 1, 4, 2, 22.0),
])
pocket10 = doc.addObject("PartDesign::Pocket", "Pocket009")
body2.addObject(pocket10)
pocket10.Profile = sketch14
pocket10.Length = 43
pocket10.Reversed = True

sketch15 = doc.addObject("Sketcher::SketchObject", "Sketch014")
body2.addObject(sketch15)
sketch15.AttachmentSupport = (doc.getObject("YZ_Plane001"), [""])
sketch15.MapMode = "FlatFace"
sketch15.addGeometry([
    Part.LineSegment(Vector(-40, 39, 0), Vector(-40, 0, 0)),
    Part.LineSegment(Vector(-40, 0, 0), Vector(40, 0, 0)),
    Part.LineSegment(Vector(40, 0, 0), Vector(40, 39, 0)),
    Part.LineSegment(Vector(40, 39, 0), Vector(-40, 39, 0)),
], False)
sketch15.addConstraint([
    Sketcher.Constraint("Coincident", 0, 2, 1, 1),
    Sketcher.Constraint("Coincident", 1, 2, 2, 1),
    Sketcher.Constraint("Coincident", 2, 2, 3, 1),
    Sketcher.Constraint("Coincident", 3, 2, 0, 1),
    Sketcher.Constraint("Vertical", 0),
    Sketcher.Constraint("Horizontal", 1),
    Sketcher.Constraint("Vertical", 2),
    Sketcher.Constraint("Horizontal", 3),
    Sketcher.Constraint("Symmetric", 0, 2, 1, 2, -1, 1),
    Sketcher.Constraint("DistanceX", 1, 1, 1, 2, 80.0),
    Sketcher.Constraint("DistanceY", 0, 2, 0, 1, 39.0),
])
pocket11 = doc.addObject("PartDesign::Pocket", "Pocket010")
body2.addObject(pocket11)
pocket11.Profile = sketch15
pocket11.Type = "ThroughAll"
pocket11.Midplane = True
body3 = doc.addObject("PartDesign::Body", "Body002")
doc.recompute()

body2.Placement = App.Placement(Vector(56, 0, 0), App.Rotation(Vector(0, 0, 1), 0))
boolean = doc.addObject("PartDesign::Boolean", "Boolean")
body3.addObject(boolean)
boolean.Type = "Fuse"
boolean.addObjects([body2])

doc.recompute()
